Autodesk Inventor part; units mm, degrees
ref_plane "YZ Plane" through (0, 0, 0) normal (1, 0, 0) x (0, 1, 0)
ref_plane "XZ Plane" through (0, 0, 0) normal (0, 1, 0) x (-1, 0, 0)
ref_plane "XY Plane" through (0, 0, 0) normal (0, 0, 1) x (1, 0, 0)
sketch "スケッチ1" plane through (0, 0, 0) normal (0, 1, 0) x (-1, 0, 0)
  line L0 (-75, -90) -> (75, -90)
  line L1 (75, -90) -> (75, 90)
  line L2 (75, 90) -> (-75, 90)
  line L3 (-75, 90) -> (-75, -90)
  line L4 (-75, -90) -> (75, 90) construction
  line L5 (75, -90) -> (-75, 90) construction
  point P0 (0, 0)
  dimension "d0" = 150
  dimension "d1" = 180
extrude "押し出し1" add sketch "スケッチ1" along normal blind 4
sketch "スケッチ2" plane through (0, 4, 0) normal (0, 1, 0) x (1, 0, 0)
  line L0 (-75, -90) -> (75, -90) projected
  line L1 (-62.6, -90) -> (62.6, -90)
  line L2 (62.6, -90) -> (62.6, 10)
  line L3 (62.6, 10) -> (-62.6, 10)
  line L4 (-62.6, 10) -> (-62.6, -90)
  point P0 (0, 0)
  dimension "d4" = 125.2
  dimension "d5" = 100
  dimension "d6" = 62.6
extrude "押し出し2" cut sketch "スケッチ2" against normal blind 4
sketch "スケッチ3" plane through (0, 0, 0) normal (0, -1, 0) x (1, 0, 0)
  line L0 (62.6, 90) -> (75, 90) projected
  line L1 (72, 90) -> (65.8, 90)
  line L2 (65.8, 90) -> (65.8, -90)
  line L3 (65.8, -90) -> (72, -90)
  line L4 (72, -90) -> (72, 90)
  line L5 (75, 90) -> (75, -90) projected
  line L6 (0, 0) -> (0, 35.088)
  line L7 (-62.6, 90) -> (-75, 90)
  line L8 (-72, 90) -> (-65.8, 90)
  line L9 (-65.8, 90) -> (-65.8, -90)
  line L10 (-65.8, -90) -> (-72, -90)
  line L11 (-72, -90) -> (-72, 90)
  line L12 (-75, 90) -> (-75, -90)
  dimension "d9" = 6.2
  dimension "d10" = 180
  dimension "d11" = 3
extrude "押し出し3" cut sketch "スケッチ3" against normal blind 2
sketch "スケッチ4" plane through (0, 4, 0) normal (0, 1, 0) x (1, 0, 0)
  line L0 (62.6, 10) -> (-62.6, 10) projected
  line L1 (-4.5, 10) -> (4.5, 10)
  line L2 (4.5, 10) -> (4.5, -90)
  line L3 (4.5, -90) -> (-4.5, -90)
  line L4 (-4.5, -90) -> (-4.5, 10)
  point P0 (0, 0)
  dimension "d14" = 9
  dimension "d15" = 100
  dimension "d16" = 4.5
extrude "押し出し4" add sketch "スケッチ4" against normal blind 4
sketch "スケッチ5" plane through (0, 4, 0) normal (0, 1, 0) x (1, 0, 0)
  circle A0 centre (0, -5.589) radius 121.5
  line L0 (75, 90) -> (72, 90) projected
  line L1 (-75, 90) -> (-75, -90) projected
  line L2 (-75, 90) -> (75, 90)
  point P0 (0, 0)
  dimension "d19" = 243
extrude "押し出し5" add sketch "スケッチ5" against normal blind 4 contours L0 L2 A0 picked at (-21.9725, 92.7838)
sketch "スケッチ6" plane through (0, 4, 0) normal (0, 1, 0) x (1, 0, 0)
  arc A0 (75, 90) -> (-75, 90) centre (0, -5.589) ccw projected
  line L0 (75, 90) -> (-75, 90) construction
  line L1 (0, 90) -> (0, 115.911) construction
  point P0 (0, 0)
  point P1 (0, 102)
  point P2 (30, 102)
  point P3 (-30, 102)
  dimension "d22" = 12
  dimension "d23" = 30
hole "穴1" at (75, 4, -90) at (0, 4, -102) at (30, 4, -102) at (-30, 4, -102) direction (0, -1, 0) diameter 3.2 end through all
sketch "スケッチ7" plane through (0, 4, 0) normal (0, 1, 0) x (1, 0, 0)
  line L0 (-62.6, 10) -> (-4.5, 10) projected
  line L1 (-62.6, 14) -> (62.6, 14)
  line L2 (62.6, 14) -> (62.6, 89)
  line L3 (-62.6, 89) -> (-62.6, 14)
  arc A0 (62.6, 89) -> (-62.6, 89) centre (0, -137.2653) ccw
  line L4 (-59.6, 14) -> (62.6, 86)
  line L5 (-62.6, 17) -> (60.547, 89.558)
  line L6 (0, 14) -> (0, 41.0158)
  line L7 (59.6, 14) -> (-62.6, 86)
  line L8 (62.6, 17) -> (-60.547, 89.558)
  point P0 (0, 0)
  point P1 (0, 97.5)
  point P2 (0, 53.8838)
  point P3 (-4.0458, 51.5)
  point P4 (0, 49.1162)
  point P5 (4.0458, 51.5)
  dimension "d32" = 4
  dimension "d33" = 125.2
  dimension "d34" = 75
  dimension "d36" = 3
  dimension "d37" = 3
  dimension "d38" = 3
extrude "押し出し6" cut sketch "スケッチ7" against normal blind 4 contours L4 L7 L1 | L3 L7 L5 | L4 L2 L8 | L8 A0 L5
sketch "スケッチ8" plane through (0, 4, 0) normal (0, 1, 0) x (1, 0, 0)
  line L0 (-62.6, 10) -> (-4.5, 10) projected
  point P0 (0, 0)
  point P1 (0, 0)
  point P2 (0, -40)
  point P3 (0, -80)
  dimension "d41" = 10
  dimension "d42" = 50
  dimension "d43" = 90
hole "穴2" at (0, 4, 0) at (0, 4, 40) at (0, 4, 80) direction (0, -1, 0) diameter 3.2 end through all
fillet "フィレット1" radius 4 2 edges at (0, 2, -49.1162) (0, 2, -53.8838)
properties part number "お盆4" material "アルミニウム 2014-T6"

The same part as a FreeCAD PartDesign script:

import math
import FreeCAD as App
import Part
import Sketcher
Q = App.Units.Quantity


def edges_at(feature, points):
    """Names of the edges that pass closest to the given points."""
    edges = feature.Shape.Edges
    near = lambda p: min(range(len(edges)), key=lambda i: edges[i].distToShape(Part.Vertex(*p))[0])
    return sorted({f"Edge{near(p) + 1}" for p in points})

doc = App.newDocument("Part")
params = doc.addObject("Spreadsheet::Sheet", "Params")
for row, (alias, value) in enumerate([
    ("sketch1_width", "150 mm"),
    ("sketch1_height", "180 mm"),
    ("pad1_length", "4 mm"),
    ("sketch2_height", "100 mm"),
    ("sketch2_width", "125.2 mm"),
    ("pocket1_length", "4 mm"),
    ("sketch3_height", "180 mm"),
    ("sketch3_width", "6.2 mm"),
    ("pocket2_length", "2 mm"),
    ("sketch4_width", "9 mm"),
    ("sketch4_height", "100 mm"),
    ("pad2_length", "4 mm"),
    ("sketch5_radius", "121.5 mm"),
    ("sketch5_width", "150 mm"),
    ("pad3_length", "4 mm"),
    ("sketch6_diameter", "3.2 mm"),
    ("hole_diameter", "3.2 mm"),
    ("sketch7_height", "69 mm"),
    ("sketch7_width", "119.2 mm"),
    ("pocket3_length", "4 mm"),
    ("sketch8_diameter", "3.2 mm"),
    ("hole2_diameter", "3.2 mm"),
    ("fillet_radius", "4 mm"),
], start=1):
    params.set(f"A{row}", alias)
    params.set(f"B{row}", "=" + value)
    params.setAlias(f"B{row}", alias)

body = doc.addObject("PartDesign::Body", "Body")

sketch1 = body.newObject("Sketcher::SketchObject", "Sketch")
sketch1.AttachmentSupport = (doc.getObject("XZ_Plane"), [""])
sketch1.MapMode = "FlatFace"
sketch1.addGeometry(Part.LineSegment(App.Vector(75, 90, 0), App.Vector(75, -90, 0)), False)
sketch1.addGeometry(Part.LineSegment(App.Vector(75, -90, 0), App.Vector(-75, -90, 0)), False)
sketch1.addGeometry(Part.LineSegment(App.Vector(-75, -90, 0), App.Vector(-75, 90, 0)), False)
sketch1.addGeometry(Part.LineSegment(App.Vector(-75, 90, 0), App.Vector(75, 90, 0)), False)
sketch1.addConstraint(Sketcher.Constraint("Coincident", 0, 2, 1, 1))
sketch1.addConstraint(Sketcher.Constraint("Coincident", 1, 2, 2, 1))
sketch1.addConstraint(Sketcher.Constraint("Coincident", 2, 2, 3, 1))
sketch1.addConstraint(Sketcher.Constraint("Coincident", 3, 2, 0, 1))
sketch1.addConstraint(Sketcher.Constraint("Vertical", 0))
sketch1.addConstraint(Sketcher.Constraint("Horizontal", 1))
sketch1.addConstraint(Sketcher.Constraint("Vertical", 2))
sketch1.addConstraint(Sketcher.Constraint("Horizontal", 3))
sketch1.addConstraint(Sketcher.Constraint("Symmetric", 0, 2, 2, 2, -1, 1))
sketch1.addConstraint(Sketcher.Constraint("DistanceX", 1, 2, 1, 1, Q("150 mm")))
sketch1.addConstraint(Sketcher.Constraint("DistanceY", 0, 2, 0, 1, Q("180 mm")))
sketch1.setExpression("Constraints[9]", "Params.sketch1_width")
sketch1.setExpression("Constraints[10]", "Params.sketch1_height")
pad1 = body.newObject("PartDesign::Pad", "Pad")
pad1.Profile = sketch1
pad1.setExpression("Length", "Params.pad1_length")
pad1.Reversed = True

sketch2 = body.newObject("Sketcher::SketchObject", "Sketch001")
sketch2.AttachmentSupport = (doc.getObject("XZ_Plane"), [""])
sketch2.MapMode = "FlatFace"
sketch2.AttachmentOffset = App.Placement(App.Vector(0, 0, -4), App.Rotation())
sketch2.addGeometry(Part.LineSegment(App.Vector(-62.6, -10, 0), App.Vector(-62.6, 90, 0)), False)
sketch2.addGeometry(Part.LineSegment(App.Vector(-62.6, 90, 0), App.Vector(62.6, 90, 0)), False)
sketch2.addGeometry(Part.LineSegment(App.Vector(62.6, 90, 0), App.Vector(62.6, -10, 0)), False)
sketch2.addGeometry(Part.LineSegment(App.Vector(62.6, -10, 0), App.Vector(-62.6, -10, 0)), False)
sketch2.addConstraint(Sketcher.Constraint("Coincident", 0, 2, 1, 1))
sketch2.addConstraint(Sketcher.Constraint("Coincident", 1, 2, 2, 1))
sketch2.addConstraint(Sketcher.Constraint("Coincident", 2, 2, 3, 1))
sketch2.addConstraint(Sketcher.Constraint("Coincident", 3, 2, 0, 1))
sketch2.addConstraint(Sketcher.Constraint("Vertical", 0))
sketch2.addConstraint(Sketcher.Constraint("Horizontal", 1))
sketch2.addConstraint(Sketcher.Constraint("Vertical", 2))
sketch2.addConstraint(Sketcher.Constraint("Horizontal", 3))
sketch2.addConstraint(Sketcher.Constraint("DistanceY", 0, 1, 0, 2, Q("100 mm")))
sketch2.addConstraint(Sketcher.Constraint("DistanceX", 1, 1, 1, 2, Q("125.2 mm")))
sketch2.addConstraint(Sketcher.Constraint("DistanceX", 0, 2, -1, 1, Q("62.6 mm")))
sketch2.addConstraint(Sketcher.Constraint("DistanceY", -1, 1, 0, 2, Q("90 mm")))
sketch2.setExpression("Constraints[8]", "Params.sketch2_height")
sketch2.setExpression("Constraints[9]", "Params.sketch2_width")
pocket1 = body.newObject("PartDesign::Pocket", "Pocket")
pocket1.Profile = sketch2
pocket1.setExpression("Length", "Params.pocket1_length")
pocket1.Reversed = True

sketch3 = body.newObject("Sketcher::SketchObject", "Sketch002")
sketch3.AttachmentSupport = (doc.getObject("XZ_Plane"), [""])
sketch3.MapMode = "FlatFace"
sketch3.addGeometry(Part.LineSegment(App.Vector(72, 90, 0), App.Vector(65.8, 90, 0)), False)
sketch3.addGeometry(Part.LineSegment(App.Vector(65.8, 90, 0), App.Vector(65.8, -90, 0)), False)
sketch3.addGeometry(Part.LineSegment(App.Vector(65.8, -90, 0), App.Vector(72, -90, 0)), False)
sketch3.addGeometry(Part.LineSegment(App.Vector(72, -90, 0), App.Vector(72, 90, 0)), False)
sketch3.addGeometry(Part.LineSegment(App.Vector(-65.8, -90, 0), App.Vector(-65.8, 90, 0)), False)
sketch3.addGeometry(Part.LineSegment(App.Vector(-65.8, 90, 0), App.Vector(-72, 90, 0)), False)
sketch3.addGeometry(Part.LineSegment(App.Vector(-72, 90, 0), App.Vector(-72, -90, 0)), False)
sketch3.addGeometry(Part.LineSegment(App.Vector(-72, -90, 0), App.Vector(-65.8, -90, 0)), False)
sketch3.addConstraint(Sketcher.Constraint("Coincident", 0, 2, 1, 1))
sketch3.addConstraint(Sketcher.Constraint("Coincident", 1, 2, 2, 1))
sketch3.addConstraint(Sketcher.Constraint("Coincident", 2, 2, 3, 1))
sketch3.addConstraint(Sketcher.Constraint("Coincident", 3, 2, 0, 1))
sketch3.addConstraint(Sketcher.Constraint("Coincident", 4, 2, 5, 1))
sketch3.addConstraint(Sketcher.Constraint("Coincident", 5, 2, 6, 1))
sketch3.addConstraint(Sketcher.Constraint("Coincident", 6, 2, 7, 1))
sketch3.addConstraint(Sketcher.Constraint("Coincident", 7, 2, 4, 1))
sketch3.addConstraint(Sketcher.Constraint("Horizontal", 0))
sketch3.addConstraint(Sketcher.Constraint("Vertical", 1))
sketch3.addConstraint(Sketcher.Constraint("Horizontal", 2))
sketch3.addConstraint(Sketcher.Constraint("Vertical", 3))
sketch3.addConstraint(Sketcher.Constraint("Vertical", 4))
sketch3.addConstraint(Sketcher.Constraint("Horizontal", 5))
sketch3.addConstraint(Sketcher.Constraint("Vertical", 6))
sketch3.addConstraint(Sketcher.Constraint("Horizontal", 7))
sketch3.addConstraint(Sketcher.Constraint("Symmetric", 1, 2, 4, 2, -1, 1))
sketch3.addConstraint(Sketcher.Constraint("Symmetric", 3, 2, 6, 2, -1, 1))
sketch3.addConstraint(Sketcher.Constraint("Horizontal", 3, 2, 4, 2))
sketch3.addConstraint(Sketcher.Constraint("DistanceY", 1, 2, 1, 1, Q("180 mm")))
sketch3.addConstraint(Sketcher.Constraint("DistanceX", 0, 2, 0, 1, Q("6.2 mm")))
sketch3.addConstraint(Sketcher.Constraint("DistanceX", -1, 1, 2, 2, Q("72 mm")))
sketch3.setExpression("Constraints[19]", "Params.sketch3_height")
sketch3.setExpression("Constraints[20]", "Params.sketch3_width")
pocket2 = body.newObject("PartDesign::Pocket", "Pocket001")
pocket2.Profile = sketch3
pocket2.setExpression("Length", "Params.pocket2_length")

sketch4 = body.newObject("Sketcher::SketchObject", "Sketch003")
sketch4.AttachmentSupport = (doc.getObject("XZ_Plane"), [""])
sketch4.MapMode = "FlatFace"
sketch4.AttachmentOffset = App.Placement(App.Vector(0, 0, -4), App.Rotation())
sketch4.addGeometry(Part.LineSegment(App.Vector(4.5, 90, 0), App.Vector(4.5, -10, 0)), False)
sketch4.addGeometry(Part.LineSegment(App.Vector(4.5, -10, 0), App.Vector(-4.5, -10, 0)), False)
sketch4.addGeometry(Part.LineSegment(App.Vector(-4.5, -10, 0), App.Vector(-4.5, 90, 0)), False)
sketch4.addGeometry(Part.LineSegment(App.Vector(-4.5, 90, 0), App.Vector(4.5, 90, 0)), False)
sketch4.addConstraint(Sketcher.Constraint("Coincident", 0, 2, 1, 1))
sketch4.addConstraint(Sketcher.Constraint("Coincident", 1, 2, 2, 1))
sketch4.addConstraint(Sketcher.Constraint("Coincident", 2, 2, 3, 1))
sketch4.addConstraint(Sketcher.Constraint("Coincident", 3, 2, 0, 1))
sketch4.addConstraint(Sketcher.Constraint("Vertical", 0))
sketch4.addConstraint(Sketcher.Constraint("Horizontal", 1))
sketch4.addConstraint(Sketcher.Constraint("Vertical", 2))
sketch4.addConstraint(Sketcher.Constraint("Horizontal", 3))
sketch4.addConstraint(Sketcher.Constraint("DistanceX", 1, 2, 1, 1, Q("9 mm")))
sketch4.addConstraint(Sketcher.Constraint("DistanceY", 0, 2, 0, 1, Q("100 mm")))
sketch4.addConstraint(Sketcher.Constraint("DistanceX", -1, 1, 0, 2, Q("4.5 mm")))
sketch4.addConstraint(Sketcher.Constraint("DistanceY", 0, 2, -1, 1, Q("10 mm")))
sketch4.setExpression("Constraints[8]", "Params.sketch4_width")
sketch4.setExpression("Constraints[9]", "Params.sketch4_height")
pad2 = body.newObject("PartDesign::Pad", "Pad001")
pad2.Profile = sketch4
pad2.setExpression("Length", "Params.pad2_length")

sketch5 = body.newObject("Sketcher::SketchObject", "Sketch004")
sketch5.AttachmentSupport = (doc.getObject("XZ_Plane"), [""])
sketch5.MapMode = "FlatFace"
sketch5.AttachmentOffset = App.Placement(App.Vector(0, 0, -4), App.Rotation())
sketch5.addGeometry(Part.LineSegment(App.Vector(-75, -90, 0), App.Vector(75, -90, 0)), False)
sketch5.addGeometry(Part.ArcOfCircle(Part.Circle(App.Vector(0, 5.589, 0), App.Vector(0, 0, 1), 121.5), math.radians(-128.118054), math.radians(-51.881946)), False)
sketch5.addConstraint(Sketcher.Constraint("Coincident", 0, 1, 1, 1))
sketch5.addConstraint(Sketcher.Constraint("Coincident", 1, 2, 0, 2))
sketch5.addConstraint(Sketcher.Constraint("Horizontal", 0))
sketch5.addConstraint(Sketcher.Constraint("PointOnObject", 1, 3, -2))
sketch5.addConstraint(Sketcher.Constraint("Radius", 1, Q("121.5 mm")))
sketch5.addConstraint(Sketcher.Constraint("DistanceX", 0, 1, 0, 2, Q("150 mm")))
sketch5.addConstraint(Sketcher.Constraint("DistanceY", 0, 1, -1, 1, Q("90 mm")))
sketch5.setExpression("Constraints[4]", "Params.sketch5_radius")
sketch5.setExpression("Constraints[5]", "Params.sketch5_width")
pad3 = body.newObject("PartDesign::Pad", "Pad002")
pad3.Profile = sketch5
pad3.setExpression("Length", "Params.pad3_length")

sketch6 = body.newObject("Sketcher::SketchObject", "Sketch005")
sketch6.AttachmentSupport = (doc.getObject("XZ_Plane"), [""])
sketch6.MapMode = "FlatFace"
sketch6.AttachmentOffset = App.Placement(App.Vector(0, 0, -4), App.Rotation())
sketch6.addGeometry(Part.Circle(App.Vector(75, -90, 0), App.Vector(0, 0, 1), 1.6), False)
sketch6.addGeometry(Part.Circle(App.Vector(0, -102, 0), App.Vector(0, 0, 1), 1.6), False)
sketch6.addGeometry(Part.Circle(App.Vector(30, -102, 0), App.Vector(0, 0, 1), 1.6), False)
sketch6.addGeometry(Part.Circle(App.Vector(-30, -102, 0), App.Vector(0, 0, 1), 1.6), False)
sketch6.addConstraint(Sketcher.Constraint("Equal", 0, 1))
sketch6.addConstraint(Sketcher.Constraint("Equal", 1, 2))
sketch6.addConstraint(Sketcher.Constraint("Equal", 2, 3))
sketch6.addConstraint(Sketcher.Constraint("Symmetric", 2, 3, 3, 3, -2))
sketch6.addConstraint(Sketcher.Constraint("PointOnObject", 1, 3, -2))
sketch6.addConstraint(Sketcher.Constraint("Horizontal", 1, 3, 2, 3))
sketch6.addConstraint(Sketcher.Constraint("Diameter", 0, Q("3.2 mm")))
sketch6.addConstraint(Sketcher.Constraint("DistanceX", -1, 1, 0, 3, Q("75 mm")))
sketch6.addConstraint(Sketcher.Constraint("DistanceY", 0, 3, -1, 1, Q("90 mm")))
sketch6.addConstraint(Sketcher.Constraint("DistanceY", 1, 3, -1, 1, Q("102 mm")))
sketch6.addConstraint(Sketcher.Constraint("DistanceX", -1, 1, 2, 3, Q("30 mm")))
sketch6.setExpression("Constraints[6]", "Params.sketch6_diameter")
doc.recompute()
hole = body.newObject("PartDesign::Hole", "Hole")
hole.Profile = sketch6
hole.ThreadType = "None"
hole.setExpression("Diameter", "Params.hole_diameter")
hole.DepthType = "ThroughAll"
hole.Reversed = True

sketch7 = body.newObject("Sketcher::SketchObject", "Sketch006")
sketch7.AttachmentSupport = (doc.getObject("XZ_Plane"), [""])
sketch7.MapMode = "FlatFace"
sketch7.AttachmentOffset = App.Placement(App.Vector(0, 0, -4), App.Rotation())
sketch7.addGeometry(Part.LineSegment(App.Vector(0, -49.116203, 0), App.Vector(-59.6, -14, 0)), False)
sketch7.addGeometry(Part.LineSegment(App.Vector(-59.6, -14, 0), App.Vector(59.6, -14, 0)), False)
sketch7.addGeometry(Part.LineSegment(App.Vector(59.6, -14, 0), App.Vector(0, -49.116203, 0)), False)
sketch7.addGeometry(Part.LineSegment(App.Vector(-62.6, -86, 0), App.Vector(-62.6, -17, 0)), False)
sketch7.addGeometry(Part.LineSegment(App.Vector(-62.6, -17, 0), App.Vector(-4.045845, -51.500007, 0)), False)
sketch7.addGeometry(Part.LineSegment(App.Vector(-4.045845, -51.500007, 0), App.Vector(-62.6, -86, 0)), False)
sketch7.addGeometry(Part.LineSegment(App.Vector(62.6, -86, 0), App.Vector(4.045845, -51.500007, 0)), False)
sketch7.addGeometry(Part.LineSegment(App.Vector(4.045845, -51.500007, 0), App.Vector(62.6, -17, 0)), False)
sketch7.addGeometry(Part.LineSegment(App.Vector(62.6, -17, 0), App.Vector(62.6, -86, 0)), False)
sketch7.addGeometry(Part.LineSegment(App.Vector(-60.547, -89.558, 0), App.Vector(0, -53.883812, 0)), False)
sketch7.addGeometry(Part.LineSegment(App.Vector(0, -53.883812, 0), App.Vector(60.547, -89.558, 0)), False)
sketch7.addGeometry(Part.ArcOfCircle(Part.Circle(App.Vector(0, 137.2653, 0), App.Vector(0, 0, 1), 234.7653), math.radians(-104.945752), math.radians(-75.054248)), False)
sketch7.addConstraint(Sketcher.Constraint("Coincident", 0, 2, 1, 1))
sketch7.addConstraint(Sketcher.Constraint("Coincident", 1, 2, 2, 1))
sketch7.addConstraint(Sketcher.Constraint("Coincident", 2, 2, 0, 1))
sketch7.addConstraint(Sketcher.Constraint("Coincident", 3, 2, 4, 1))
sketch7.addConstraint(Sketcher.Constraint("Coincident", 4, 2, 5, 1))
sketch7.addConstraint(Sketcher.Constraint("Coincident", 5, 2, 3, 1))
sketch7.addConstraint(Sketcher.Constraint("Coincident", 6, 2, 7, 1))
sketch7.addConstraint(Sketcher.Constraint("Coincident", 7, 2, 8, 1))
sketch7.addConstraint(Sketcher.Constraint("Coincident", 8, 2, 6, 1))
sketch7.addConstraint(Sketcher.Constraint("Coincident", 9, 2, 10, 1))
sketch7.addConstraint(Sketcher.Constraint("Coincident", 10, 2, 11, 2))
sketch7.addConstraint(Sketcher.Constraint("Coincident", 11, 1, 9, 1))
sketch7.addConstraint(Sketcher.Constraint("Horizontal", 1))
sketch7.addConstraint(Sketcher.Constraint("Vertical", 3))
sketch7.addConstraint(Sketcher.Constraint("Vertical", 8))
sketch7.addConstraint(Sketcher.Constraint("Symmetric", 4, 2, 6, 2, -2))
sketch7.addConstraint(Sketcher.Constraint("Symmetric", 3, 2, 7, 2, -2))
sketch7.addConstraint(Sketcher.Constraint("Symmetric", 10, 2, 11, 1, -2))
sketch7.addConstraint(Sketcher.Constraint("PointOnObject", 2, 2, -2))
sketch7.addConstraint(Sketcher.Constraint("PointOnObject", 9, 2, -2))
sketch7.addConstraint(Sketcher.Constraint("Parallel", 0, 4))
sketch7.addConstraint(Sketcher.Constraint("Parallel", 2, 5))
sketch7.addConstraint(Sketcher.Constraint("Parallel", 4, 6))
sketch7.addConstraint(Sketcher.Constraint("Parallel", 5, 7))
sketch7.addConstraint(Sketcher.Constraint("Parallel", 7, 9))
sketch7.addConstraint(Sketcher.Constraint("DistanceX", 3, 2, 0, 2, Q("3 mm")))
sketch7.addConstraint(Sketcher.Constraint("DistanceY", 3, 2, 0, 2, Q("3 mm")))
sketch7.addConstraint(Sketcher.Constraint("DistanceY", 3, 1, 3, 2, Q("69 mm")))
sketch7.addConstraint(Sketcher.Constraint("DistanceX", 1, 1, 1, 2, Q("119.2 mm")))
sketch7.addConstraint(Sketcher.Constraint("DistanceY", 0, 2, -1, 1, Q("14 mm")))
sketch7.addConstraint(Sketcher.Constraint("Radius", 11, Q("234.7653 mm")))
sketch7.addConstraint(Sketcher.Constraint("Distance", 0, Q("69.176 mm")))
sketch7.addConstraint(Sketcher.Constraint("Distance", 9, Q("70.275 mm")))
sketch7.addConstraint(Sketcher.Constraint("DistanceY", 10, 2, -1, 1, Q("89.558 mm")))
sketch7.setExpression("Constraints[27]", "Params.sketch7_height")
sketch7.setExpression("Constraints[28]", "Params.sketch7_width")
pocket3 = body.newObject("PartDesign::Pocket", "Pocket002")
pocket3.Profile = sketch7
pocket3.setExpression("Length", "Params.pocket3_length")
pocket3.Reversed = True

sketch8 = body.newObject("Sketcher::SketchObject", "Sketch007")
sketch8.AttachmentSupport = (doc.getObject("XZ_Plane"), [""])
sketch8.MapMode = "FlatFace"
sketch8.AttachmentOffset = App.Placement(App.Vector(0, 0, -4), App.Rotation())
sketch8.addGeometry(Part.Circle(App.Vector(0, 0, 0), App.Vector(0, 0, 1), 1.6), False)
sketch8.addGeometry(Part.Circle(App.Vector(0, 40, 0), App.Vector(0, 0, 1), 1.6), False)
sketch8.addGeometry(Part.Circle(App.Vector(0, 80, 0), App.Vector(0, 0, 1), 1.6), False)
sketch8.addConstraint(Sketcher.Constraint("Coincident", 0, 3, -1, 1))
sketch8.addConstraint(Sketcher.Constraint("Equal", 0, 1))
sketch8.addConstraint(Sketcher.Constraint("Equal", 1, 2))
sketch8.addConstraint(Sketcher.Constraint("PointOnObject", 1, 3, -2))
sketch8.addConstraint(Sketcher.Constraint("PointOnObject", 2, 3, -2))
sketch8.addConstraint(Sketcher.Constraint("Diameter", 0, Q("3.2 mm")))
sketch8.addConstraint(Sketcher.Constraint("DistanceY", -1, 1, 1, 3, Q("40 mm")))
sketch8.addConstraint(Sketcher.Constraint("DistanceY", -1, 1, 2, 3, Q("80 mm")))
sketch8.setExpression("Constraints[5]", "Params.sketch8_diameter")
doc.recompute()
hole2 = body.newObject("PartDesign::Hole", "Hole001")
hole2.Profile = sketch8
hole2.ThreadType = "None"
hole2.setExpression("Diameter", "Params.hole2_diameter")
hole2.DepthType = "ThroughAll"
hole2.Reversed = True
doc.recompute()

fillet = body.newObject("PartDesign::Fillet", "Fillet")
fillet.Base = (hole2, edges_at(hole2, [(0, 2, -49.116), (0, 2, -53.884)]))
fillet.setExpression("Radius", "Params.fillet_radius")

doc.recompute()
